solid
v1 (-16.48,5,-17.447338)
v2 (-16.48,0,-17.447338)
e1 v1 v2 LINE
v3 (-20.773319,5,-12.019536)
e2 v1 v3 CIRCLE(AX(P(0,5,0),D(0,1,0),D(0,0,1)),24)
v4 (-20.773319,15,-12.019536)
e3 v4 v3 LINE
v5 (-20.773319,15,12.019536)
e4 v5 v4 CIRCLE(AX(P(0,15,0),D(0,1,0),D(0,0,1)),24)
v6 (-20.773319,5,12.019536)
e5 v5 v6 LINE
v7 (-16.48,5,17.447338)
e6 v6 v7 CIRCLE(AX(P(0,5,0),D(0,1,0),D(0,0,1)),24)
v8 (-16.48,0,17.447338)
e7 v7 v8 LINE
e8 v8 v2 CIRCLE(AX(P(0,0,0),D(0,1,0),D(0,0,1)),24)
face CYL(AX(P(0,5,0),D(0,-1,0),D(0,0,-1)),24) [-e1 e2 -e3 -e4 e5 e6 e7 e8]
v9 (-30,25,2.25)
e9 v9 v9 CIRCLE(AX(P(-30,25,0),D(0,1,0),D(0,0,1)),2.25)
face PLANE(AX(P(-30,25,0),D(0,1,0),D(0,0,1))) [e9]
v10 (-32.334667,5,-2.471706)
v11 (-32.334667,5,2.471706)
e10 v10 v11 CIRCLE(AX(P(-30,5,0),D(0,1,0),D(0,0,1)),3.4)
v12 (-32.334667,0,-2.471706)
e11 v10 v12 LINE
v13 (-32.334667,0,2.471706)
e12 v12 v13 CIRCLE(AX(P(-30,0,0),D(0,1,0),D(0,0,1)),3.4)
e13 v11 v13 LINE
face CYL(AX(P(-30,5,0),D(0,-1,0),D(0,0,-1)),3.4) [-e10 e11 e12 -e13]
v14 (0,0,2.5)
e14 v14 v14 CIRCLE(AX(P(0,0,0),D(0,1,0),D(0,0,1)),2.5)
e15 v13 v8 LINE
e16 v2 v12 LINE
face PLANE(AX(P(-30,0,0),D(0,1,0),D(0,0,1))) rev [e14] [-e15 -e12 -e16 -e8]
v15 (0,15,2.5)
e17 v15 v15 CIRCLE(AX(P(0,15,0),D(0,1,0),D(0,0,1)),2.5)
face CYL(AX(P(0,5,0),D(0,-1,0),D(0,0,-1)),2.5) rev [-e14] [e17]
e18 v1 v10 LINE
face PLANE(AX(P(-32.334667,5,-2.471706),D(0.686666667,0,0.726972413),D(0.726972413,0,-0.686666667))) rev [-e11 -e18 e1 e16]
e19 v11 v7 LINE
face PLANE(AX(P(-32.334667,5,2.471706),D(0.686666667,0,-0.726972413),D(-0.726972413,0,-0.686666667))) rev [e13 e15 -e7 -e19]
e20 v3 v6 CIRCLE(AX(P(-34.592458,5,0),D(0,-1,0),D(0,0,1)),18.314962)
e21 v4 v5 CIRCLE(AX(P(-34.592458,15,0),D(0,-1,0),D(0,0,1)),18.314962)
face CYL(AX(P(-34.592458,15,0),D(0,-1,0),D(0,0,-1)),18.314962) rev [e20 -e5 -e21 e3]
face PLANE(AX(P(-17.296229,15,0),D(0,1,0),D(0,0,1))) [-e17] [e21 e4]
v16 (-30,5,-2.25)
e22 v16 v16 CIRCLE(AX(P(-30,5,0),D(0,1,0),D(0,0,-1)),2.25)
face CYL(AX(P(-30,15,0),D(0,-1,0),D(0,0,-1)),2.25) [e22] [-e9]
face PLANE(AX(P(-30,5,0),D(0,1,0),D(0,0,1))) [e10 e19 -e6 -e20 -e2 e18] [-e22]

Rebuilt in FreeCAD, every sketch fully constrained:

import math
import FreeCAD as App
import Part
import Sketcher

V = App.Vector

doc = App.newDocument("Part")
body = doc.addObject("PartDesign::Body", "Body")

# Sketch on XZ plane
sketch1 = body.newObject("Sketcher::SketchObject", "Sketch")
sketch1.AttachmentSupport = (doc.getObject("XZ_Plane"), [""])
sketch1.MapMode = "FlatFace"
sketch1.addGeometry([
    Part.LineSegment(V(-16.5, -17.4, 0), V(-32.3, -2.5, 0)),  # 0
    Part.ArcOfCircle(Part.Circle(V(-30, 0, 0), V(0, 0, 1), 3.4), math.radians(133), math.radians(227)),  # 1
    Part.LineSegment(V(-32.3, 2.5, 0), V(-16.5, 17.4, 0)),  # 2
    Part.ArcOfCircle(Part.Circle(V(0, 0, 0), V(0, 0, 1), 24), math.radians(-133), math.radians(133)),  # 3
    Part.Circle(V(0, 0, 0), V(0, 0, 1), 2.5),  # 4
], False)
sketch1.addConstraint([
    Sketcher.Constraint("Tangent", 0, 2, 1, 2),
    Sketcher.Constraint("Tangent", 1, 1, 2, 1),
    Sketcher.Constraint("Tangent", 2, 2, 3, 2),
    Sketcher.Constraint("Tangent", 3, 1, 0, 1),
    Sketcher.Constraint("Coincident", 3, 3, -1, 1),
    Sketcher.Constraint("Coincident", 4, 3, -1, 1),
    Sketcher.Constraint("PointOnObject", 1, 3, -1),
    Sketcher.Constraint("Diameter", 4, 5.0),
    Sketcher.Constraint("Radius", 3, 24.0),
    Sketcher.Constraint("Radius", 1, 3.4),
    Sketcher.Constraint("DistanceX", 1, 3, -1, 1, 30.0),
])
pad1 = body.newObject("PartDesign::Pad", "Pad")
pad1.Profile = sketch1
pad1.Length = 5
pad1.Reversed = True

# Sketch on XZ plane
sketch2 = body.newObject("Sketcher::SketchObject", "Sketch001")
sketch2.AttachmentSupport = (doc.getObject("XZ_Plane"), [""])
sketch2.MapMode = "FlatFace"
sketch2.AttachmentOffset = App.Placement(V(0, 0, -5), App.Rotation())
sketch2.addGeometry([
    Part.Circle(V(-30, 0, 0), V(0, 0, 1), 2.2),
    Part.ArcOfCircle(Part.Circle(V(0, 0, 0), V(0, 0, 1), 24), math.radians(-150), math.radians(150)),
    Part.ArcOfCircle(Part.Circle(V(-34.6, 0, 0), V(0, 0, 1), 18.3), math.radians(-41), math.radians(41)),
    Part.Circle(V(0, 0, 0), V(0, 0, 1), 2.5),
], False)
sketch2.addConstraint([
    Sketcher.Constraint("Coincident", 1, 1, 2, 1),
    Sketcher.Constraint("Coincident", 2, 2, 1, 2),
    Sketcher.Constraint("Coincident", 1, 3, -1, 1),
    Sketcher.Constraint("Coincident", 3, 3, -1, 1),
    Sketcher.Constraint("PointOnObject", 0, 3, -1),
    Sketcher.Constraint("PointOnObject", 2, 3, -1),
    Sketcher.Constraint("Diameter", 3, 5.0),
    Sketcher.Constraint("Radius", 1, 24.0),
    Sketcher.Constraint("Diameter", 0, 4.5),
    Sketcher.Constraint("DistanceX", 0, 3, -1, 1, 30.0),
    Sketcher.Constraint("Radius", 2, 18.314962),
    Sketcher.Constraint("DistanceX", 1, 1, -1, 1, 20.773319),
])
pad2 = body.newObject("PartDesign::Pad", "Pad001")
pad2.Profile = sketch2
pad2.Length = 10
pad2.Reversed = True

# Sketch on XZ plane
sketch3 = body.newObject("Sketcher::SketchObject", "Sketch002")
sketch3.AttachmentSupport = (doc.getObject("XZ_Plane"), [""])
sketch3.MapMode = "FlatFace"
sketch3.AttachmentOffset = App.Placement(V(0, 0, -15), App.Rotation())
sketch3.addGeometry(Part.Circle(V(-30, 0, 0), V(0, 0, 1), 2.2), False)
sketch3.addConstraint([
    Sketcher.Constraint("PointOnObject", 0, 3, -1),
    Sketcher.Constraint("Diameter", 0, 4.5),
    Sketcher.Constraint("DistanceX", 0, 3, -1, 1, 30.0),
])
pad3 = body.newObject("PartDesign::Pad", "Pad002")
pad3.Profile = sketch3
pad3.Length = 10
pad3.Reversed = True

doc.recompute()
